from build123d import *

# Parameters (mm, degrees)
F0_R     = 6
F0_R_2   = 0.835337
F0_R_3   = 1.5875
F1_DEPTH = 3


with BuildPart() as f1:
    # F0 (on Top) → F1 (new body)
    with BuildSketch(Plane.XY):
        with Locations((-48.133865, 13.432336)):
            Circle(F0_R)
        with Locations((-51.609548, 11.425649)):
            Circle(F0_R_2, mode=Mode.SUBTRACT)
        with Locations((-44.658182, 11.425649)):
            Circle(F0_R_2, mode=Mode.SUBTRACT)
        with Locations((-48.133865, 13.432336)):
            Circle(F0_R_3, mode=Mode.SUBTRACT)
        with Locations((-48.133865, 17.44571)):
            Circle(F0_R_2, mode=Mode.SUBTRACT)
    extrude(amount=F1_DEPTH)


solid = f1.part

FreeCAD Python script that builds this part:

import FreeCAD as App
import Part
import Sketcher
from FreeCAD import Vector
Q = App.Units.Quantity

doc = App.newDocument("Part")
body = doc.addObject("PartDesign::Body", "Body")

# Sketch on XY plane
sketch1 = doc.addObject("Sketcher::SketchObject", "Sketch")
body.addObject(sketch1)
sketch1.AttachmentSupport = (doc.XY_Plane, [""])
sketch1.MapMode = "FlatFace"
sketch1.addGeometry([
    Part.Circle(Vector(-48.1, 13.4, 0), Vector(0, 0, 1), 6),  # 0
    Part.Circle(Vector(-51.6, 11.4, 0), Vector(0, 0, 1), 0.8),  # 1
    Part.Circle(Vector(-48.1, 13.4, 0), Vector(0, 0, 1), 1.6),  # 2
    Part.Circle(Vector(-44.7, 11.4, 0), Vector(0, 0, 1), 0.8),  # 3
    Part.Circle(Vector(-48.1, 17.4, 0), Vector(0, 0, 1), 0.8),  # 4
], False)
sketch1.addConstraint([
    Sketcher.Constraint("Coincident", 2, 3, 0, 3),
    Sketcher.Constraint("Equal", 1, 3),
    Sketcher.Constraint("Equal", 3, 4),
    Sketcher.Constraint("Horizontal", 1, 3, 3, 3),
    Sketcher.Constraint("Vertical", 2, 3, 4, 3),
    Sketcher.Constraint("Diameter", 0, Q("12 mm")),
    Sketcher.Constraint("Diameter", 2, Q("3.175 mm")),
    Sketcher.Constraint("Diameter", 1, Q("1.670674 mm")),
    Sketcher.Constraint("DistanceY", -1, 1, 1, 3, Q("11.425649 mm")),
    Sketcher.Constraint("DistanceX", 3, 3, -1, 1, Q("44.658182 mm")),
    Sketcher.Constraint("DistanceY", -1, 1, 4, 3, Q("17.44571 mm")),
    Sketcher.Constraint("DistanceX", 0, 3, -1, 1, Q("48.133865 mm")),
    Sketcher.Constraint("DistanceY", -1, 1, 0, 3, Q("13.432336 mm")),
    Sketcher.Constraint("DistanceX", 1, 3, -1, 1, Q("51.609548 mm")),
])
pad1 = doc.addObject("PartDesign::Pad", "Pad")
body.addObject(pad1)
pad1.Profile = sketch1
pad1.Length = 3

doc.recompute()
